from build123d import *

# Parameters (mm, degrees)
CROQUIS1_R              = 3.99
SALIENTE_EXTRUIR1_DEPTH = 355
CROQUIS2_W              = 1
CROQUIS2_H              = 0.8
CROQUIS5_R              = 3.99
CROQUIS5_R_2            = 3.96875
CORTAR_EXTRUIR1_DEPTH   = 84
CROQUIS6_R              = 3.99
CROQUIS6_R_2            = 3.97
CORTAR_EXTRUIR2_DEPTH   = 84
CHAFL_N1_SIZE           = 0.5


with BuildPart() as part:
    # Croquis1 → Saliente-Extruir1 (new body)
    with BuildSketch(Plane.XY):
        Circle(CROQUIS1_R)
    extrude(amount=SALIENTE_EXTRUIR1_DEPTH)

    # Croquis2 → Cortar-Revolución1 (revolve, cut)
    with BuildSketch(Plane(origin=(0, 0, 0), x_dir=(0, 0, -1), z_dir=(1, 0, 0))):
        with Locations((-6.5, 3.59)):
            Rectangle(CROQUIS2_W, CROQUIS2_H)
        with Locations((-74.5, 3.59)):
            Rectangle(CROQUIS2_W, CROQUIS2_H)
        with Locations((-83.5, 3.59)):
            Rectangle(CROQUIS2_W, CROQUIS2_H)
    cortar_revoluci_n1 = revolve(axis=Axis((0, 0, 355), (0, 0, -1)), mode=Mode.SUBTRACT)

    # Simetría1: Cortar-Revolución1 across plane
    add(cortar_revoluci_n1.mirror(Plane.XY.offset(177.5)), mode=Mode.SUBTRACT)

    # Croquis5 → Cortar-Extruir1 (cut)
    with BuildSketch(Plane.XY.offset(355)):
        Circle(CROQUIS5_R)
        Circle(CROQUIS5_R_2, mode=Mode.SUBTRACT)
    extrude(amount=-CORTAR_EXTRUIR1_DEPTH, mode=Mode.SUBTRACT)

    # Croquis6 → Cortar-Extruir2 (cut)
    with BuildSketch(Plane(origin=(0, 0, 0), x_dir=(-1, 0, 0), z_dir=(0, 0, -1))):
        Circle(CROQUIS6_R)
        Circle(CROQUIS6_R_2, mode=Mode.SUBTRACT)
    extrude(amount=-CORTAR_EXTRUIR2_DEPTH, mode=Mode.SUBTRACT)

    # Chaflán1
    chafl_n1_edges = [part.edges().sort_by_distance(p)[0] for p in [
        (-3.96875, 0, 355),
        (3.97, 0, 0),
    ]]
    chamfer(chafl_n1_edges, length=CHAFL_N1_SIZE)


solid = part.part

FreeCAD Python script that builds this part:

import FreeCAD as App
import Part
import Sketcher


def edges_at(feature, points):
    """Names of the edges that pass closest to the given points."""
    edges = feature.Shape.Edges
    near = lambda p: min(range(len(edges)), key=lambda i: edges[i].distToShape(Part.Vertex(*p))[0])
    return sorted({f"Edge{near(p) + 1}" for p in points})


def add_polygon(sketch, points):
    """Adds a closed chain of lines whose ends are joined by coincident constraints."""
    first, n = sketch.GeometryCount, len(points)
    for a, b in zip(points, points[1:] + points[:1]):
        sketch.addGeometry(Part.LineSegment(App.Vector(*a, 0), App.Vector(*b, 0)), False)
    for i in range(n):
        sketch.addConstraint(Sketcher.Constraint("Coincident", first + i, 2, first + (i + 1) % n, 1))

doc = App.newDocument("Part")
body = doc.addObject("PartDesign::Body", "Body")

# Sketch on XY plane
sketch1 = body.newObject("Sketcher::SketchObject", "Sketch")
sketch1.AttachmentSupport = (doc.getObject("XY_Plane"), [""])
sketch1.MapMode = "FlatFace"
sketch1.addGeometry(Part.Circle(App.Vector(0, 0, 0), App.Vector(0, 0, 1), 4), False)
sketch1.addConstraint(Sketcher.Constraint("Coincident", 0, 3, -1, 1))
sketch1.addConstraint(Sketcher.Constraint("Diameter", 0, 7.98))
pad1 = body.newObject("PartDesign::Pad", "Pad")
pad1.Profile = sketch1
pad1.Length = 355

# Sketch on YZ plane
sketch2 = body.newObject("Sketcher::SketchObject", "Sketch001")
sketch2.AttachmentSupport = (doc.getObject("YZ_Plane"), [""])
sketch2.MapMode = "FlatFace"
add_polygon(sketch2, [(4, 7), (3.2, 7), (3.2, 6), (4, 6)])  # lines 0-3
add_polygon(sketch2, [(4, 75), (3.2, 75), (3.2, 74), (4, 74)])  # lines 4-7
add_polygon(sketch2, [(4, 84), (3.2, 84), (3.2, 83), (4, 83)])  # lines 8-11
sketch2.addConstraint(Sketcher.Constraint("Horizontal", 0))
sketch2.addConstraint(Sketcher.Constraint("Vertical", 1))
sketch2.addConstraint(Sketcher.Constraint("Horizontal", 2))
sketch2.addConstraint(Sketcher.Constraint("Vertical", 3))
sketch2.addConstraint(Sketcher.Constraint("Horizontal", 4))
sketch2.addConstraint(Sketcher.Constraint("Vertical", 5))
sketch2.addConstraint(Sketcher.Constraint("Horizontal", 6))
sketch2.addConstraint(Sketcher.Constraint("Vertical", 7))
sketch2.addConstraint(Sketcher.Constraint("Horizontal", 8))
sketch2.addConstraint(Sketcher.Constraint("Vertical", 9))
sketch2.addConstraint(Sketcher.Constraint("Horizontal", 10))
sketch2.addConstraint(Sketcher.Constraint("Vertical", 11))
sketch2.addConstraint(Sketcher.Constraint("Vertical", 1, 2, 4, 2))
sketch2.addConstraint(Sketcher.Constraint("Vertical", 3, 2, 6, 2))
sketch2.addConstraint(Sketcher.Constraint("Vertical", 5, 2, 8, 2))
sketch2.addConstraint(Sketcher.Constraint("Vertical", 7, 2, 10, 2))
sketch2.addConstraint(Sketcher.Constraint("Equal", 3, 5))
sketch2.addConstraint(Sketcher.Constraint("Equal", 7, 9))
sketch2.addConstraint(Sketcher.Constraint("DistanceY", 1, 2, 1, 1, 1.0))
sketch2.addConstraint(Sketcher.Constraint("DistanceX", 0, 2, 0, 1, 0.8))
sketch2.addConstraint(Sketcher.Constraint("DistanceY", -1, 1, 0, 2, 7.0))
sketch2.addConstraint(Sketcher.Constraint("DistanceY", -1, 1, 4, 2, 75.0))
sketch2.addConstraint(Sketcher.Constraint("DistanceY", -1, 1, 8, 2, 84.0))
sketch2.addConstraint(Sketcher.Constraint("DistanceX", -1, 1, 0, 2, 3.19))
groove = body.newObject("PartDesign::Groove", "Groove")
groove.Profile = sketch2
groove.ReferenceAxis = (sketch2, ["V_Axis"])
groove.Angle = 360
doc.recompute()

datumplane = body.newObject("PartDesign::Plane", "DatumPlane")
datumplane.AttachmentSupport = (doc.getObject("XY_Plane"), [""])
datumplane.MapMode = "FlatFace"
datumplane.AttachmentOffset = App.Placement(App.Vector(0, 0, 177.5), App.Rotation())
mirrored = body.newObject("PartDesign::Mirrored", "Mirrored")
mirrored.Originals = [groove]
mirrored.MirrorPlane = (datumplane, [""])
body.Tip = mirrored

# Sketch on XY plane
sketch3 = body.newObject("Sketcher::SketchObject", "Sketch002")
sketch3.AttachmentSupport = (doc.getObject("XY_Plane"), [""])
sketch3.MapMode = "FlatFace"
sketch3.AttachmentOffset = App.Placement(App.Vector(0, 0, 355), App.Rotation())
sketch3.addGeometry(Part.Circle(App.Vector(0, 0, 0), App.Vector(0, 0, 1), 4), False)
sketch3.addGeometry(Part.Circle(App.Vector(0, 0, 0), App.Vector(0, 0, 1), 4), False)
sketch3.addConstraint(Sketcher.Constraint("Coincident", 0, 3, -1, 1))
sketch3.addConstraint(Sketcher.Constraint("Coincident", 1, 3, -1, 1))
sketch3.addConstraint(Sketcher.Constraint("Diameter", 0, 7.98))
sketch3.addConstraint(Sketcher.Constraint("Diameter", 1, 7.9375))
pocket1 = body.newObject("PartDesign::Pocket", "Pocket")
pocket1.Profile = sketch3
pocket1.Length = 84

# Sketch on XY plane
sketch4 = body.newObject("Sketcher::SketchObject", "Sketch003")
sketch4.AttachmentSupport = (doc.getObject("XY_Plane"), [""])
sketch4.MapMode = "FlatFace"
sketch4.addGeometry(Part.Circle(App.Vector(0, 0, 0), App.Vector(0, 0, 1), 4), False)
sketch4.addGeometry(Part.Circle(App.Vector(0, 0, 0), App.Vector(0, 0, 1), 4), False)
sketch4.addConstraint(Sketcher.Constraint("Coincident", 0, 3, -1, 1))
sketch4.addConstraint(Sketcher.Constraint("Coincident", 1, 3, -1, 1))
sketch4.addConstraint(Sketcher.Constraint("Diameter", 0, 7.98))
sketch4.addConstraint(Sketcher.Constraint("Diameter", 1, 7.94))
pocket2 = body.newObject("PartDesign::Pocket", "Pocket001")
pocket2.Profile = sketch4
pocket2.Length = 84
pocket2.Reversed = True
doc.recompute()

chamfer = body.newObject("PartDesign::Chamfer", "Chamfer")
chamfer.Base = (pocket2, edges_at(pocket2, [(-3.969, 0, 355), (3.97, 0, 0)]))
chamfer.Size = 0.5

doc.recompute()
